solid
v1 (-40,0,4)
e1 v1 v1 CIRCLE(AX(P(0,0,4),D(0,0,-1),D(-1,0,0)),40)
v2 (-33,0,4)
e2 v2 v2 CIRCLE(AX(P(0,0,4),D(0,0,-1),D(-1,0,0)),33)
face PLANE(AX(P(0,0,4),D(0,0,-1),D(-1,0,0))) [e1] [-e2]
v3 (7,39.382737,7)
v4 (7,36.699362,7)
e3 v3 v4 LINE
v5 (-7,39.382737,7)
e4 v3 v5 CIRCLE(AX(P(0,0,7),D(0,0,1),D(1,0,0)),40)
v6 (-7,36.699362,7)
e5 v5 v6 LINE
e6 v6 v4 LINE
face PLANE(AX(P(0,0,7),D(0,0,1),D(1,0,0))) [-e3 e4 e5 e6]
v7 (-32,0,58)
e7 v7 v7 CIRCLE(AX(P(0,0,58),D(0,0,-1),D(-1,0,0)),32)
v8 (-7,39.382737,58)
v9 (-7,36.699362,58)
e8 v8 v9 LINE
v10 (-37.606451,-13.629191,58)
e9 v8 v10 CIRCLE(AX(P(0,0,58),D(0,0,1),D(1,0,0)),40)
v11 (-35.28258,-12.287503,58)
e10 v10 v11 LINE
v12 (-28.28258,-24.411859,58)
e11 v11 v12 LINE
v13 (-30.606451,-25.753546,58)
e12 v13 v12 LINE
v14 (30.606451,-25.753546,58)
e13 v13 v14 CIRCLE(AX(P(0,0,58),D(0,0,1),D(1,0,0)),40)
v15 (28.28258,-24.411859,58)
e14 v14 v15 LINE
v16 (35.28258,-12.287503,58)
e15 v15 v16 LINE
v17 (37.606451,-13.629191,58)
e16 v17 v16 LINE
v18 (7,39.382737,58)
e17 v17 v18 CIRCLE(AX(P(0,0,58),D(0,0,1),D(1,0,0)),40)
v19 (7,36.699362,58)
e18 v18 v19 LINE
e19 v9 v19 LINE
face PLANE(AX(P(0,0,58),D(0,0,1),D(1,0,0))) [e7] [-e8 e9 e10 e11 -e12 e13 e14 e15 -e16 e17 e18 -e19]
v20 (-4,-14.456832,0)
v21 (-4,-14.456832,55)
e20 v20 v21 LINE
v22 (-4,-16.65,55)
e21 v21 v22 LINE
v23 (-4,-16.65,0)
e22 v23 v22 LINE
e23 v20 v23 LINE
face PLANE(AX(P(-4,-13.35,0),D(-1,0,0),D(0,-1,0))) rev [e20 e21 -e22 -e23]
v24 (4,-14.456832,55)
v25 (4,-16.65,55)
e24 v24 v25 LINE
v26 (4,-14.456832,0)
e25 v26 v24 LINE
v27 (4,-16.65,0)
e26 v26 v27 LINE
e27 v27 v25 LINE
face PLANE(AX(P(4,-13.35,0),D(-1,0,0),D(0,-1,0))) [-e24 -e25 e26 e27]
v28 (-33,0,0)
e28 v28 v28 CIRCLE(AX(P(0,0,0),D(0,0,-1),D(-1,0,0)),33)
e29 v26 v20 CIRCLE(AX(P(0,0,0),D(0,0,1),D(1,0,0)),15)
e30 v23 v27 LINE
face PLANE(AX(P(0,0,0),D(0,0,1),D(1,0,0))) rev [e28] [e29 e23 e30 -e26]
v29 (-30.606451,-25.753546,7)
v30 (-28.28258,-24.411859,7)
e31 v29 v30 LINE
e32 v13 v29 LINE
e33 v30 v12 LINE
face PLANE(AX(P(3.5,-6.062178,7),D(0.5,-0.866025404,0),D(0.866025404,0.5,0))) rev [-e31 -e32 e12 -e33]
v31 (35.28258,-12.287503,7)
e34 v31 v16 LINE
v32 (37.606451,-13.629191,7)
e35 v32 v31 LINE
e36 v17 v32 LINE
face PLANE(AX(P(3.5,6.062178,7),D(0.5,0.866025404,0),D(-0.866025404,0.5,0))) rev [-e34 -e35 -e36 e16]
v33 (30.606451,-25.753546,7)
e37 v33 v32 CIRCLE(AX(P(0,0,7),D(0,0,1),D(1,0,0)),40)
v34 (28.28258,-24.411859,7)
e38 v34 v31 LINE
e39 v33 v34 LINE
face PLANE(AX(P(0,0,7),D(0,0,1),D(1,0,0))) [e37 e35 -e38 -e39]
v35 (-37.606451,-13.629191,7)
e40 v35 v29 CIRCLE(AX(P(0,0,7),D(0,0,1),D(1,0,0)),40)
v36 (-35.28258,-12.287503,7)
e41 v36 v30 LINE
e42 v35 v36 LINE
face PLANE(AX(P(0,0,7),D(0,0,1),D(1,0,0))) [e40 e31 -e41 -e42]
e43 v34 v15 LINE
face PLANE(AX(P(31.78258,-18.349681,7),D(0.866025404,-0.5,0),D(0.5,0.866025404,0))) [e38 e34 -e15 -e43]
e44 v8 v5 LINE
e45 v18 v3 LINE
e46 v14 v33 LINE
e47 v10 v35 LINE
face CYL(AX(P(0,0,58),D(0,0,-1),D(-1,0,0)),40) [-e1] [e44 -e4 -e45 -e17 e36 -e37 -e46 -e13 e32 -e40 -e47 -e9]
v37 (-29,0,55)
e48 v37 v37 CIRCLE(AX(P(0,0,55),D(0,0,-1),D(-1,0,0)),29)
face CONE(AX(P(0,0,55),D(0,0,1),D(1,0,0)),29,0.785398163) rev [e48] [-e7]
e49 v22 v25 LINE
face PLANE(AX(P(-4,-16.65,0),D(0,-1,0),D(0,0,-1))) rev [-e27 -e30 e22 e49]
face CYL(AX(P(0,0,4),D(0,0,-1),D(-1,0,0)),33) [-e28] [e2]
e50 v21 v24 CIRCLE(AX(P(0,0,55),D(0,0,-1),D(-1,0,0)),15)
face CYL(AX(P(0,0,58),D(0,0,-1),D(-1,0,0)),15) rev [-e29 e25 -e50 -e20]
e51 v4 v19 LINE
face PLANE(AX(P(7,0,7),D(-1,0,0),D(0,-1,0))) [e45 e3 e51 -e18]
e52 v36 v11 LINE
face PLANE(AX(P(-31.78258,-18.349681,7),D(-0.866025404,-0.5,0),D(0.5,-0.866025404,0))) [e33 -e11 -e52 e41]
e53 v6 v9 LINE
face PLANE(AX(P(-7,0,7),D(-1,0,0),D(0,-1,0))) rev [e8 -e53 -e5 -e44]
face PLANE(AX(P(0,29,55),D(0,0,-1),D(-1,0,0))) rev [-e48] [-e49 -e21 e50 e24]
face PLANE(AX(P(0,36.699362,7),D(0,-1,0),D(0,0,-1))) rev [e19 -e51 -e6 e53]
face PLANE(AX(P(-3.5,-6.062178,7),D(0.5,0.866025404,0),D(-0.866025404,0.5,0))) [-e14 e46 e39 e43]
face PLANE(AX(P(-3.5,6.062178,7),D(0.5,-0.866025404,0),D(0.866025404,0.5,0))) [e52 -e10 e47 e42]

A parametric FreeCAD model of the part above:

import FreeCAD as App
import Part
import Sketcher
Q = App.Units.Quantity

doc = App.newDocument("Part")
body = doc.addObject("PartDesign::Body", "Body")

sketch1 = doc.addObject("Sketcher::SketchObject", "Sketch")
body.addObject(sketch1)
sketch1.AttachmentSupport = (doc.XY_Plane, [""])
sketch1.MapMode = "FlatFace"
sketch1.addGeometry([
    Part.Circle(App.Vector(0, 0, 0), App.Vector(0, 0, 1), 40),
    Part.Circle(App.Vector(0, 0, 0), App.Vector(0, 0, 1), 15),
], False)
sketch1.addConstraint([
    Sketcher.Constraint("Coincident", 0, 3, -1, 1),
    Sketcher.Constraint("Coincident", 1, 3, -1, 1),
    Sketcher.Constraint("Diameter", 0, Q("80 mm")),
    Sketcher.Constraint("Diameter", 1, Q("30 mm")),
])
pad1 = doc.addObject("PartDesign::Pad", "Pad")
body.addObject(pad1)
pad1.Profile = sketch1
pad1.Length = 58

sketch2 = doc.addObject("Sketcher::SketchObject", "Sketch001")
body.addObject(sketch2)
sketch2.AttachmentSupport = (doc.XY_Plane, [""])
sketch2.MapMode = "FlatFace"
sketch2.AttachmentOffset = App.Placement(App.Vector(0, 0, 58), App.Rotation())
sketch2.addGeometry([
    Part.LineSegment(App.Vector(-4, -13.3, 0), App.Vector(-4, -16.6, 0)),
    Part.LineSegment(App.Vector(-4, -16.6, 0), App.Vector(4, -16.6, 0)),
    Part.LineSegment(App.Vector(4, -16.6, 0), App.Vector(4, -13.3, 0)),
    Part.LineSegment(App.Vector(4, -13.3, 0), App.Vector(-4, -13.3, 0)),
], False)
sketch2.addConstraint([
    Sketcher.Constraint("Coincident", 0, 2, 1, 1),
    Sketcher.Constraint("Coincident", 1, 2, 2, 1),
    Sketcher.Constraint("Coincident", 2, 2, 3, 1),
    Sketcher.Constraint("Coincident", 3, 2, 0, 1),
    Sketcher.Constraint("Vertical", 0),
    Sketcher.Constraint("Horizontal", 1),
    Sketcher.Constraint("Vertical", 2),
    Sketcher.Constraint("Horizontal", 3),
    Sketcher.Constraint("DistanceX", 1, 1, 1, 2, Q("8 mm")),
    Sketcher.Constraint("DistanceY", 0, 2, 0, 1, Q("3.3 mm")),
    Sketcher.Constraint("DistanceX", 0, 2, -1, 1, Q("4 mm")),
    Sketcher.Constraint("DistanceY", 0, 2, -1, 1, Q("16.65 mm")),
])
pocket1 = doc.addObject("PartDesign::Pocket", "Pocket")
body.addObject(pocket1)
pocket1.Profile = sketch2
pocket1.Type = "ThroughAll"

sketch3 = doc.addObject("Sketcher::SketchObject", "Sketch002")
body.addObject(sketch3)
sketch3.AttachmentSupport = (doc.XY_Plane, [""])
sketch3.MapMode = "FlatFace"
sketch3.AttachmentOffset = App.Placement(App.Vector(0, 0, 7), App.Rotation())
sketch3.addGeometry([
    Part.LineSegment(App.Vector(41, -15.6, 0), App.Vector(37.6, -13.6, 0)),
    Part.LineSegment(App.Vector(37.6, -13.6, 0), App.Vector(35.3, -12.3, 0)),
    Part.LineSegment(App.Vector(35.3, -12.3, 0), App.Vector(28.3, -24.4, 0)),
    Part.LineSegment(App.Vector(28.3, -24.4, 0), App.Vector(30.6, -25.8, 0)),
    Part.LineSegment(App.Vector(30.6, -25.8, 0), App.Vector(34, -27.7, 0)),
    Part.LineSegment(App.Vector(34, -27.7, 0), App.Vector(41, -15.6, 0)),
    Part.LineSegment(App.Vector(-37.6, -13.6, 0), App.Vector(-41, -15.6, 0)),
    Part.LineSegment(App.Vector(-41, -15.6, 0), App.Vector(-34, -27.7, 0)),
    Part.LineSegment(App.Vector(-34, -27.7, 0), App.Vector(-30.6, -25.8, 0)),
    Part.LineSegment(App.Vector(-30.6, -25.8, 0), App.Vector(-28.3, -24.4, 0)),
    Part.LineSegment(App.Vector(-28.3, -24.4, 0), App.Vector(-35.3, -12.3, 0)),
    Part.LineSegment(App.Vector(-35.3, -12.3, 0), App.Vector(-37.6, -13.6, 0)),
    Part.LineSegment(App.Vector(-7, 36.7, 0), App.Vector(7, 36.7, 0)),
    Part.LineSegment(App.Vector(7, 36.7, 0), App.Vector(7, 43.3, 0)),
    Part.LineSegment(App.Vector(7, 43.3, 0), App.Vector(-7, 43.3, 0)),
    Part.LineSegment(App.Vector(-7, 43.3, 0), App.Vector(-7, 36.7, 0)),
], False)
sketch3.addConstraint([
    Sketcher.Constraint("Coincident", 0, 2, 1, 1),
    Sketcher.Constraint("Coincident", 1, 2, 2, 1),
    Sketcher.Constraint("Coincident", 2, 2, 3, 1),
    Sketcher.Constraint("Coincident", 3, 2, 4, 1),
    Sketcher.Constraint("Coincident", 4, 2, 5, 1),
    Sketcher.Constraint("Coincident", 5, 2, 0, 1),
    Sketcher.Constraint("Coincident", 6, 2, 7, 1),
    Sketcher.Constraint("Coincident", 7, 2, 8, 1),
    Sketcher.Constraint("Coincident", 8, 2, 9, 1),
    Sketcher.Constraint("Coincident", 9, 2, 10, 1),
    Sketcher.Constraint("Coincident", 10, 2, 11, 1),
    Sketcher.Constraint("Coincident", 11, 2, 6, 1),
    Sketcher.Constraint("Coincident", 12, 2, 13, 1),
    Sketcher.Constraint("Coincident", 13, 2, 14, 1),
    Sketcher.Constraint("Coincident", 14, 2, 15, 1),
    Sketcher.Constraint("Coincident", 15, 2, 12, 1),
    Sketcher.Constraint("Horizontal", 12),
    Sketcher.Constraint("Vertical", 13),
    Sketcher.Constraint("Horizontal", 14),
    Sketcher.Constraint("Vertical", 15),
    Sketcher.Constraint("Symmetric", 5, 2, 6, 2, -2),
    Sketcher.Constraint("Symmetric", 4, 2, 7, 2, -2),
    Sketcher.Constraint("Symmetric", 3, 2, 8, 2, -2),
    Sketcher.Constraint("Symmetric", 2, 2, 9, 2, -2),
    Sketcher.Constraint("Symmetric", 1, 2, 10, 2, -2),
    Sketcher.Constraint("Symmetric", 0, 2, 11, 2, -2),
    Sketcher.Constraint("Parallel", 0, 1),
    Sketcher.Constraint("Perpendicular", 1, 2),
    Sketcher.Constraint("Perpendicular", 2, 3),
    Sketcher.Constraint("Parallel", 3, 4),
    Sketcher.Constraint("Perpendicular", 4, 5),
    Sketcher.Constraint("Equal", 1, 3),
    Sketcher.Constraint("DistanceX", 12, 1, 12, 2, Q("14 mm")),
    Sketcher.Constraint("Angle", 0, Q("150 deg")),
    Sketcher.Constraint("Distance", 2, Q("14 mm")),
    Sketcher.Constraint("DistanceX", -1, 1, 12, 2, Q("7 mm")),
    Sketcher.Constraint("DistanceX", 3, 2, 4, 2, Q("3.393001 mm")),
    Sketcher.Constraint("DistanceY", 13, 1, 13, 2, Q("6.601276 mm")),
    Sketcher.Constraint("DistanceX", -1, 1, 0, 2, Q("37.606451 mm")),
    Sketcher.Constraint("DistanceY", 0, 2, -1, 1, Q("13.629191 mm")),
    Sketcher.Constraint("DistanceX", -1, 1, 1, 2, Q("35.28258 mm")),
    Sketcher.Constraint("DistanceY", 2, 2, 12, 2, Q("61.111221 mm")),
])
pocket2 = doc.addObject("PartDesign::Pocket", "Pocket001")
body.addObject(pocket2)
pocket2.Profile = sketch3
pocket2.Length = 51
pocket2.Reversed = True

sketch4 = doc.addObject("Sketcher::SketchObject", "Sketch003")
body.addObject(sketch4)
sketch4.AttachmentSupport = (doc.XY_Plane, [""])
sketch4.MapMode = "FlatFace"
sketch4.addGeometry([
    Part.Circle(App.Vector(0, 0, 0), App.Vector(0, 0, 1), 40),
    Part.Circle(App.Vector(0, 0, 0), App.Vector(0, 0, 1), 33),
], False)
sketch4.addConstraint([
    Sketcher.Constraint("Coincident", 0, 3, -1, 1),
    Sketcher.Constraint("Coincident", 1, 3, -1, 1),
    Sketcher.Constraint("Diameter", 0, Q("80 mm")),
    Sketcher.Constraint("Diameter", 1, Q("66 mm")),
])
pocket3 = doc.addObject("PartDesign::Pocket", "Pocket002")
body.addObject(pocket3)
pocket3.Profile = sketch4
pocket3.Length = 4
pocket3.Reversed = True

sketch5 = doc.addObject("Sketcher::SketchObject", "Sketch004")
body.addObject(sketch5)
sketch5.AttachmentSupport = (doc.YZ_Plane, [""])
sketch5.MapMode = "FlatFace"
sketch5.addGeometry([
    Part.LineSegment(App.Vector(29, 55, 0), App.Vector(32, 58, 0)),
    Part.LineSegment(App.Vector(32, 58, 0), App.Vector(0, 58, 0)),
    Part.LineSegment(App.Vector(0, 58, 0), App.Vector(0, 55, 0)),
    Part.LineSegment(App.Vector(0, 55, 0), App.Vector(29, 55, 0)),
], False)
sketch5.addConstraint([
    Sketcher.Constraint("Coincident", 0, 2, 1, 1),
    Sketcher.Constraint("Coincident", 1, 2, 2, 1),
    Sketcher.Constraint("Coincident", 2, 2, 3, 1),
    Sketcher.Constraint("Coincident", 3, 2, 0, 1),
    Sketcher.Constraint("Horizontal", 1),
    Sketcher.Constraint("Vertical", 2),
    Sketcher.Constraint("Horizontal", 3),
    Sketcher.Constraint("PointOnObject", 1, 2, -2),
    Sketcher.Constraint("DistanceX", 1, 2, 1, 1, Q("32 mm")),
    Sketcher.Constraint("DistanceX", 3, 1, 3, 2, Q("29 mm")),
    Sketcher.Constraint("DistanceY", 2, 2, 2, 1, Q("3 mm")),
    Sketcher.Constraint("DistanceY", -1, 1, 0, 2, Q("58 mm")),
])
groove = doc.addObject("PartDesign::Groove", "Groove")
body.addObject(groove)
groove.Profile = sketch5
groove.ReferenceAxis = (sketch5, ["V_Axis"])
groove.Angle = 360

doc.recompute()
